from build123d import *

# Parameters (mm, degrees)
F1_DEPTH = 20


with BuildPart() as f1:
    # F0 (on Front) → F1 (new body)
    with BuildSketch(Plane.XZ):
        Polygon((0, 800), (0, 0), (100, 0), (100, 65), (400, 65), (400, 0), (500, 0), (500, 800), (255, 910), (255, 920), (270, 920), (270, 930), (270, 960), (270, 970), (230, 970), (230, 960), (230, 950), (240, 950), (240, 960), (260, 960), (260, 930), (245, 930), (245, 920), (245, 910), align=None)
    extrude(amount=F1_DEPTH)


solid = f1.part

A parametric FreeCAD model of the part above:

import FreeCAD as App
import Part
import Sketcher

V = App.Vector
Q = App.Units.Quantity

doc = App.newDocument("Part")
body = doc.addObject("PartDesign::Body", "Body")

# Sketch on XZ plane
sketch1 = body.newObject("Sketcher::SketchObject", "Sketch")
sketch1.AttachmentSupport = (doc.getObject("XZ_Plane"), [""])
sketch1.MapMode = "FlatFace"
sketch1.addGeometry([
    Part.LineSegment(V(0, 800, 0), V(0, 0, 0)),  # 0
    Part.LineSegment(V(0, 0, 0), V(100, 0, 0)),  # 1
    Part.LineSegment(V(100, 0, 0), V(100, 65, 0)),  # 2
    Part.LineSegment(V(100, 65, 0), V(400, 65, 0)),  # 3
    Part.LineSegment(V(400, 65, 0), V(400, 0, 0)),  # 4
    Part.LineSegment(V(400, 0, 0), V(500, 0, 0)),  # 5
    Part.LineSegment(V(500, 0, 0), V(500, 800, 0)),  # 6
    Part.LineSegment(V(500, 800, 0), V(255, 910, 0)),  # 7
    Part.LineSegment(V(255, 910, 0), V(255, 920, 0)),  # 8
    Part.LineSegment(V(255, 920, 0), V(270, 920, 0)),  # 9
    Part.LineSegment(V(270, 920, 0), V(270, 970, 0)),  # 10
    Part.LineSegment(V(270, 970, 0), V(230, 970, 0)),  # 11
    Part.LineSegment(V(230, 970, 0), V(230, 950, 0)),  # 12
    Part.LineSegment(V(230, 950, 0), V(240, 950, 0)),  # 13
    Part.LineSegment(V(240, 950, 0), V(240, 960, 0)),  # 14
    Part.LineSegment(V(240, 960, 0), V(260, 960, 0)),  # 15
    Part.LineSegment(V(260, 960, 0), V(260, 930, 0)),  # 16
    Part.LineSegment(V(260, 930, 0), V(245, 930, 0)),  # 17
    Part.LineSegment(V(245, 930, 0), V(245, 910, 0)),  # 18
    Part.LineSegment(V(245, 910, 0), V(0, 800, 0)),  # 19
], False)
sketch1.addConstraint([
    Sketcher.Constraint("Coincident", 0, 2, 1, 1),
    Sketcher.Constraint("Coincident", 1, 2, 2, 1),
    Sketcher.Constraint("Coincident", 2, 2, 3, 1),
    Sketcher.Constraint("Coincident", 3, 2, 4, 1),
    Sketcher.Constraint("Coincident", 4, 2, 5, 1),
    Sketcher.Constraint("Coincident", 5, 2, 6, 1),
    Sketcher.Constraint("Coincident", 6, 2, 7, 1),
    Sketcher.Constraint("Coincident", 7, 2, 8, 1),
    Sketcher.Constraint("Coincident", 8, 2, 9, 1),
    Sketcher.Constraint("Coincident", 9, 2, 10, 1),
    Sketcher.Constraint("Coincident", 10, 2, 11, 1),
    Sketcher.Constraint("Coincident", 11, 2, 12, 1),
    Sketcher.Constraint("Coincident", 12, 2, 13, 1),
    Sketcher.Constraint("Coincident", 13, 2, 14, 1),
    Sketcher.Constraint("Coincident", 14, 2, 15, 1),
    Sketcher.Constraint("Coincident", 15, 2, 16, 1),
    Sketcher.Constraint("Coincident", 16, 2, 17, 1),
    Sketcher.Constraint("Coincident", 17, 2, 18, 1),
    Sketcher.Constraint("Coincident", 18, 2, 19, 1),
    Sketcher.Constraint("Coincident", 19, 2, 0, 1),
    Sketcher.Constraint("Vertical", 0),
    Sketcher.Constraint("Horizontal", 1),
    Sketcher.Constraint("Vertical", 2),
    Sketcher.Constraint("Horizontal", 3),
    Sketcher.Constraint("Vertical", 4),
    Sketcher.Constraint("Horizontal", 5),
    Sketcher.Constraint("Vertical", 6),
    Sketcher.Constraint("Vertical", 8),
    Sketcher.Constraint("Horizontal", 9),
    Sketcher.Constraint("Vertical", 10),
    Sketcher.Constraint("Horizontal", 11),
    Sketcher.Constraint("Vertical", 12),
    Sketcher.Constraint("Horizontal", 13),
    Sketcher.Constraint("Vertical", 14),
    Sketcher.Constraint("Horizontal", 15),
    Sketcher.Constraint("Vertical", 16),
    Sketcher.Constraint("Horizontal", 17),
    Sketcher.Constraint("Vertical", 18),
    Sketcher.Constraint("Coincident", 0, 2, -1, 1),
    Sketcher.Constraint("PointOnObject", 4, 2, -1),
    Sketcher.Constraint("Horizontal", 7, 2, 18, 2),
    Sketcher.Constraint("Horizontal", 6, 2, 19, 2),
    Sketcher.Constraint("Equal", 1, 5),
    Sketcher.Constraint("Equal", 9, 17),
    Sketcher.Constraint("Equal", 13, 8),
    Sketcher.Constraint("Equal", 15, 12),
    Sketcher.Constraint("Equal", 8, 14),
    Sketcher.Constraint("Equal", 12, 18),
    Sketcher.Constraint("Equal", 7, 19),
    Sketcher.Constraint("DistanceX", 1, 1, 1, 2, Q("100 mm")),
    Sketcher.Constraint("DistanceX", 3, 1, 3, 2, Q("300 mm")),
    Sketcher.Constraint("DistanceX", 9, 1, 9, 2, Q("15 mm")),
    Sketcher.Constraint("DistanceX", 11, 2, 11, 1, Q("40 mm")),
    Sketcher.Constraint("DistanceX", 13, 1, 13, 2, Q("10 mm")),
    Sketcher.Constraint("DistanceX", 15, 1, 15, 2, Q("20 mm")),
    Sketcher.Constraint("DistanceY", 0, 2, 0, 1, Q("800 mm")),
    Sketcher.Constraint("DistanceY", 2, 1, 2, 2, Q("65 mm")),
    Sketcher.Constraint("DistanceY", 10, 1, 10, 2, Q("50 mm")),
    Sketcher.Constraint("DistanceY", -1, 1, 7, 2, Q("910 mm")),
])
pad1 = body.newObject("PartDesign::Pad", "Pad")
pad1.Profile = sketch1
pad1.Length = 20

doc.recompute()
